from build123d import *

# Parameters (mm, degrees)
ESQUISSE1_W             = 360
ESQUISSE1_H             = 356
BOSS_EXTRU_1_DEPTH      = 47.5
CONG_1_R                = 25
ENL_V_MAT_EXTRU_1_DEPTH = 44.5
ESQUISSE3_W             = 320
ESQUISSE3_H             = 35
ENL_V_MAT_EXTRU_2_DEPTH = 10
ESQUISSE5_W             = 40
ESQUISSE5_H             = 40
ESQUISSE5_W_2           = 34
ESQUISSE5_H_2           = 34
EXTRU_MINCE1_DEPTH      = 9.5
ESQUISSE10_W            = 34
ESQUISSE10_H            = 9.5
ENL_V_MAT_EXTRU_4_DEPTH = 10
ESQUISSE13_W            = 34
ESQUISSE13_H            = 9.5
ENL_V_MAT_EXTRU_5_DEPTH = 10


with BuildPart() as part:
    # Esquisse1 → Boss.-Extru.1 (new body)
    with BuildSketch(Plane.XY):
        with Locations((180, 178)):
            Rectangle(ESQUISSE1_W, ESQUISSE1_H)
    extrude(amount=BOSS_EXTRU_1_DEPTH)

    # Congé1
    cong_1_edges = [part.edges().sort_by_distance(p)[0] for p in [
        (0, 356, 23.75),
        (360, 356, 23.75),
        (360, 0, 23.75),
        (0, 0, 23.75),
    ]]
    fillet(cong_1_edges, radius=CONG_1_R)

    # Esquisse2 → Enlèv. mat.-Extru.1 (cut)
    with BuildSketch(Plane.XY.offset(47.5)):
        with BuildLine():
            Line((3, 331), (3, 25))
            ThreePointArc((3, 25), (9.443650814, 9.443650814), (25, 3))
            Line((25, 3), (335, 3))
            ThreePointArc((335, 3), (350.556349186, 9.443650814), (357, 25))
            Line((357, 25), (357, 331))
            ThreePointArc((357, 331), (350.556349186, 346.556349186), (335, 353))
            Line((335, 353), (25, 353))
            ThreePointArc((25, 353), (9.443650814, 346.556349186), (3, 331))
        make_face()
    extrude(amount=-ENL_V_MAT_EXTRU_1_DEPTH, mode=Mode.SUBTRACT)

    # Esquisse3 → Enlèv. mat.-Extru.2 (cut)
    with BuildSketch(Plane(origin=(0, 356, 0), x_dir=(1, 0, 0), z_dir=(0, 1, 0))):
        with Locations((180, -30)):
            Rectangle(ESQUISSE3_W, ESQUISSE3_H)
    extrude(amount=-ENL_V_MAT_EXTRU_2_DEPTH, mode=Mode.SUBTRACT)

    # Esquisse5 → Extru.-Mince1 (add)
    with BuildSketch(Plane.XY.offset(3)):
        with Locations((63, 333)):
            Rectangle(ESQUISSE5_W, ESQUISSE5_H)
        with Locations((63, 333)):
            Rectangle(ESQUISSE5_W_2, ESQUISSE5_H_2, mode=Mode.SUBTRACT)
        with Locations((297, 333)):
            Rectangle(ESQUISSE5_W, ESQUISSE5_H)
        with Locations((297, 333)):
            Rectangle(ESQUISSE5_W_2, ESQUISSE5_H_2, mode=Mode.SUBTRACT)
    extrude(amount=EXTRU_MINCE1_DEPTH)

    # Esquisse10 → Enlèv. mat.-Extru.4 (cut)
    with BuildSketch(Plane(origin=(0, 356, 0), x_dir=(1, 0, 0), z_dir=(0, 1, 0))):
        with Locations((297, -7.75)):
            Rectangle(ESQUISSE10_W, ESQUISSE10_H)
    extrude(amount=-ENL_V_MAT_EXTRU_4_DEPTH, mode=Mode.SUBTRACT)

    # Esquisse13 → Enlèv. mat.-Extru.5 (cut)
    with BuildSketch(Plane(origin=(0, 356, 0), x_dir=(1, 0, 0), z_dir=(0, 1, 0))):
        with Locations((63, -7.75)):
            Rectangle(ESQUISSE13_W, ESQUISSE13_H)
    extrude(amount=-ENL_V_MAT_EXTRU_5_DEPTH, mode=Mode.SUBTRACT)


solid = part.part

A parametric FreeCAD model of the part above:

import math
import FreeCAD as App
import Part
import Sketcher


def edges_at(feature, points):
    """Names of the edges that pass closest to the given points."""
    edges = feature.Shape.Edges
    near = lambda p: min(range(len(edges)), key=lambda i: edges[i].distToShape(Part.Vertex(*p))[0])
    return sorted({f"Edge{near(p) + 1}" for p in points})


def add_polygon(sketch, points):
    """Adds a closed chain of lines whose ends are joined by coincident constraints."""
    first, n = sketch.GeometryCount, len(points)
    for a, b in zip(points, points[1:] + points[:1]):
        sketch.addGeometry(Part.LineSegment(App.Vector(*a, 0), App.Vector(*b, 0)), False)
    for i in range(n):
        sketch.addConstraint(Sketcher.Constraint("Coincident", first + i, 2, first + (i + 1) % n, 1))

doc = App.newDocument("Part")
params = doc.addObject("Spreadsheet::Sheet", "Params")
for row, (alias, value) in enumerate([
    ("sketch1_width", "360 mm"),
    ("sketch1_height", "356 mm"),
    ("pad1_length", "47.5 mm"),
    ("fillet_radius", "25 mm"),
    ("sketch2_radius", "22 mm"),
    ("sketch2_width", "310 mm"),
    ("sketch2_height", "306 mm"),
    ("pocket1_length", "44.5 mm"),
    ("sketch3_width", "320 mm"),
    ("sketch3_height", "35 mm"),
    ("pocket2_length", "10 mm"),
    ("sketch4_width", "40 mm"),
    ("sketch4_width2", "34 mm"),
    ("pad2_length", "9.5 mm"),
    ("sketch5_width", "34 mm"),
    ("sketch5_height", "9.5 mm"),
    ("pocket3_length", "10 mm"),
    ("sketch6_width", "34 mm"),
    ("sketch6_height", "9.5 mm"),
    ("pocket4_length", "10 mm"),
], start=1):
    params.set(f"A{row}", alias)
    params.set(f"B{row}", "=" + value)
    params.setAlias(f"B{row}", alias)

body = doc.addObject("PartDesign::Body", "Body")

# Sketch on XY plane
sketch1 = doc.addObject("Sketcher::SketchObject", "Sketch")
body.addObject(sketch1)
sketch1.AttachmentSupport = (doc.XY_Plane, [""])
sketch1.MapMode = "FlatFace"
add_polygon(sketch1, [(0, 356), (0, 0), (360, 0), (360, 356)])  # lines 0-3
sketch1.addConstraint([
    Sketcher.Constraint("Vertical", 0),
    Sketcher.Constraint("Horizontal", 1),
    Sketcher.Constraint("Vertical", 2),
    Sketcher.Constraint("Horizontal", 3),
    Sketcher.Constraint("Coincident", 0, 2, -1, 1),
    Sketcher.Constraint("DistanceX", 1, 1, 1, 2, 360.0),
    Sketcher.Constraint("DistanceY", 0, 2, 0, 1, 356.0),
])
sketch1.setExpression("Constraints[9]", "Params.sketch1_width")
sketch1.setExpression("Constraints[10]", "Params.sketch1_height")
pad1 = doc.addObject("PartDesign::Pad", "Pad")
body.addObject(pad1)
pad1.Profile = sketch1
pad1.setExpression("Length", "Params.pad1_length")
doc.recompute()

fillet = doc.addObject("PartDesign::Fillet", "Fillet")
body.addObject(fillet)
fillet.Base = (pad1, edges_at(pad1, [
    (0, 356, 23.75),
    (360, 356, 23.75),
    (360, 0, 23.75),
    (0, 0, 23.75),
]))
fillet.setExpression("Radius", "Params.fillet_radius")

# Sketch on XY plane
sketch2 = doc.addObject("Sketcher::SketchObject", "Sketch001")
body.addObject(sketch2)
sketch2.AttachmentSupport = (doc.XY_Plane, [""])
sketch2.MapMode = "FlatFace"
sketch2.AttachmentOffset = App.Placement(App.Vector(0, 0, 47.5), App.Rotation())
sketch2.addGeometry([
    Part.LineSegment(App.Vector(3, 331, 0), App.Vector(3, 25, 0)),  # 0
    Part.ArcOfCircle(Part.Circle(App.Vector(25, 25, 0), App.Vector(0, 0, 1), 22), math.radians(180), math.radians(270)),  # 1
    Part.LineSegment(App.Vector(25, 3, 0), App.Vector(335, 3, 0)),  # 2
    Part.ArcOfCircle(Part.Circle(App.Vector(335, 25, 0), App.Vector(0, 0, 1), 22), math.radians(-90), math.radians(0)),  # 3
    Part.LineSegment(App.Vector(357, 25, 0), App.Vector(357, 331, 0)),  # 4
    Part.ArcOfCircle(Part.Circle(App.Vector(335, 331, 0), App.Vector(0, 0, 1), 22), math.radians(0), math.radians(90)),  # 5
    Part.LineSegment(App.Vector(335, 353, 0), App.Vector(25, 353, 0)),  # 6
    Part.ArcOfCircle(Part.Circle(App.Vector(25, 331, 0), App.Vector(0, 0, 1), 22), math.radians(90), math.radians(180)),  # 7
], False)
sketch2.addConstraint([
    Sketcher.Constraint("Tangent", 0, 2, 1, 1),
    Sketcher.Constraint("Tangent", 1, 2, 2, 1),
    Sketcher.Constraint("Tangent", 2, 2, 3, 1),
    Sketcher.Constraint("Tangent", 3, 2, 4, 1),
    Sketcher.Constraint("Tangent", 4, 2, 5, 1),
    Sketcher.Constraint("Tangent", 5, 2, 6, 1),
    Sketcher.Constraint("Tangent", 6, 2, 7, 1),
    Sketcher.Constraint("Tangent", 7, 2, 0, 1),
    Sketcher.Constraint("Vertical", 0),
    Sketcher.Constraint("Horizontal", 2),
    Sketcher.Constraint("Vertical", 4),
    Sketcher.Constraint("Horizontal", 6),
    Sketcher.Constraint("Equal", 1, 3),
    Sketcher.Constraint("Equal", 3, 5),
    Sketcher.Constraint("Equal", 5, 7),
    Sketcher.Constraint("Radius", 1, 22.0),
    Sketcher.Constraint("DistanceX", 2, 1, 2, 2, 310.0),
    Sketcher.Constraint("DistanceY", 0, 2, 0, 1, 306.0),
    Sketcher.Constraint("DistanceX", -1, 1, 1, 3, 25.0),
    Sketcher.Constraint("DistanceY", -1, 1, 1, 3, 25.0),
])
sketch2.setExpression("Constraints[15]", "Params.sketch2_radius")
sketch2.setExpression("Constraints[16]", "Params.sketch2_width")
sketch2.setExpression("Constraints[17]", "Params.sketch2_height")
pocket1 = doc.addObject("PartDesign::Pocket", "Pocket")
body.addObject(pocket1)
pocket1.Profile = sketch2
pocket1.setExpression("Length", "Params.pocket1_length")

# Sketch on XZ plane
sketch3 = doc.addObject("Sketcher::SketchObject", "Sketch002")
body.addObject(sketch3)
sketch3.AttachmentSupport = (doc.XZ_Plane, [""])
sketch3.MapMode = "FlatFace"
sketch3.AttachmentOffset = App.Placement(App.Vector(0, 0, -356), App.Rotation())
add_polygon(sketch3, [(20, 12), (20, 48), (340, 48), (340, 12)])  # lines 0-3
sketch3.addConstraint([
    Sketcher.Constraint("Vertical", 0),
    Sketcher.Constraint("Horizontal", 1),
    Sketcher.Constraint("Vertical", 2),
    Sketcher.Constraint("Horizontal", 3),
    Sketcher.Constraint("DistanceX", 1, 1, 1, 2, 320.0),
    Sketcher.Constraint("DistanceY", 0, 1, 0, 2, 35.0),
    Sketcher.Constraint("DistanceX", -1, 1, 0, 2, 20.0),
    Sketcher.Constraint("DistanceY", -1, 1, 0, 2, 47.5),
])
sketch3.setExpression("Constraints[8]", "Params.sketch3_width")
sketch3.setExpression("Constraints[9]", "Params.sketch3_height")
pocket2 = doc.addObject("PartDesign::Pocket", "Pocket001")
body.addObject(pocket2)
pocket2.Profile = sketch3
pocket2.setExpression("Length", "Params.pocket2_length")
pocket2.Reversed = True

# Sketch on XY plane
sketch4 = doc.addObject("Sketcher::SketchObject", "Sketch003")
body.addObject(sketch4)
sketch4.AttachmentSupport = (doc.XY_Plane, [""])
sketch4.MapMode = "FlatFace"
sketch4.AttachmentOffset = App.Placement(App.Vector(0, 0, 3), App.Rotation())
add_polygon(sketch4, [(43, 353), (43, 313), (83, 313), (83, 353)])  # lines 0-3
add_polygon(sketch4, [(80, 316), (46, 316), (46, 350), (80, 350)])  # lines 4-7
add_polygon(sketch4, [(277, 353), (277, 313), (317, 313), (317, 353)])  # lines 8-11
add_polygon(sketch4, [(314, 316), (280, 316), (280, 350), (314, 350)])  # lines 12-15
sketch4.addConstraint([
    Sketcher.Constraint("Vertical", 0),
    Sketcher.Constraint("Horizontal", 1),
    Sketcher.Constraint("Vertical", 2),
    Sketcher.Constraint("Horizontal", 3),
    Sketcher.Constraint("Horizontal", 4),
    Sketcher.Constraint("Vertical", 5),
    Sketcher.Constraint("Horizontal", 6),
    Sketcher.Constraint("Vertical", 7),
    Sketcher.Constraint("Vertical", 8),
    Sketcher.Constraint("Horizontal", 9),
    Sketcher.Constraint("Vertical", 10),
    Sketcher.Constraint("Horizontal", 11),
    Sketcher.Constraint("Horizontal", 12),
    Sketcher.Constraint("Vertical", 13),
    Sketcher.Constraint("Horizontal", 14),
    Sketcher.Constraint("Vertical", 15),
    Sketcher.Constraint("Horizontal", 1, 2, 8, 2),
    Sketcher.Constraint("Horizontal", 3, 2, 10, 2),
    Sketcher.Constraint("Horizontal", 7, 2, 12, 2),
    Sketcher.Constraint("Horizontal", 6, 2, 13, 2),
    Sketcher.Constraint("Equal", 3, 9),
    Sketcher.Constraint("Equal", 6, 12),
    Sketcher.Constraint("Equal", 11, 0),
    Sketcher.Constraint("Equal", 14, 5),
    Sketcher.Constraint("DistanceX", 1, 1, 1, 2, 40.0),
    Sketcher.Constraint("DistanceX", 4, 2, 4, 1, 34.0),
    Sketcher.Constraint("DistanceX", -1, 1, 0, 2, 43.0),
    Sketcher.Constraint("DistanceY", -1, 1, 0, 2, 313.0),
    Sketcher.Constraint("DistanceX", -1, 1, 4, 2, 46.0),
    Sketcher.Constraint("DistanceY", -1, 1, 4, 2, 316.0),
    Sketcher.Constraint("DistanceX", -1, 1, 8, 2, 277.0),
    Sketcher.Constraint("DistanceX", -1, 1, 12, 2, 280.0),
])
sketch4.setExpression("Constraints[40]", "Params.sketch4_width")
sketch4.setExpression("Constraints[41]", "Params.sketch4_width2")
pad2 = doc.addObject("PartDesign::Pad", "Pad001")
body.addObject(pad2)
pad2.Profile = sketch4
pad2.setExpression("Length", "Params.pad2_length")

# Sketch on XZ plane
sketch5 = doc.addObject("Sketcher::SketchObject", "Sketch004")
body.addObject(sketch5)
sketch5.AttachmentSupport = (doc.XZ_Plane, [""])
sketch5.MapMode = "FlatFace"
sketch5.AttachmentOffset = App.Placement(App.Vector(0, 0, -356), App.Rotation())
add_polygon(sketch5, [(280, 3), (280, 12), (314, 12), (314, 3)])  # lines 0-3
sketch5.addConstraint([
    Sketcher.Constraint("Vertical", 0),
    Sketcher.Constraint("Horizontal", 1),
    Sketcher.Constraint("Vertical", 2),
    Sketcher.Constraint("Horizontal", 3),
    Sketcher.Constraint("DistanceX", 1, 1, 1, 2, 34.0),
    Sketcher.Constraint("DistanceY", 0, 1, 0, 2, 9.5),
    Sketcher.Constraint("DistanceX", -1, 1, 0, 2, 280.0),
    Sketcher.Constraint("DistanceY", -1, 1, 2, 2, 3.0),
])
sketch5.setExpression("Constraints[8]", "Params.sketch5_width")
sketch5.setExpression("Constraints[9]", "Params.sketch5_height")
pocket3 = doc.addObject("PartDesign::Pocket", "Pocket002")
body.addObject(pocket3)
pocket3.Profile = sketch5
pocket3.setExpression("Length", "Params.pocket3_length")
pocket3.Reversed = True

# Sketch on XZ plane
sketch6 = doc.addObject("Sketcher::SketchObject", "Sketch005")
body.addObject(sketch6)
sketch6.AttachmentSupport = (doc.XZ_Plane, [""])
sketch6.MapMode = "FlatFace"
sketch6.AttachmentOffset = App.Placement(App.Vector(0, 0, -356), App.Rotation())
add_polygon(sketch6, [(46, 3), (46, 12), (80, 12), (80, 3)])  # lines 0-3
sketch6.addConstraint([
    Sketcher.Constraint("Vertical", 0),
    Sketcher.Constraint("Horizontal", 1),
    Sketcher.Constraint("Vertical", 2),
    Sketcher.Constraint("Horizontal", 3),
    Sketcher.Constraint("DistanceX", 1, 1, 1, 2, 34.0),
    Sketcher.Constraint("DistanceY", 0, 1, 0, 2, 9.5),
    Sketcher.Constraint("DistanceX", -1, 1, 0, 2, 46.0),
    Sketcher.Constraint("DistanceY", -1, 1, 2, 2, 3.0),
])
sketch6.setExpression("Constraints[8]", "Params.sketch6_width")
sketch6.setExpression("Constraints[9]", "Params.sketch6_height")
pocket4 = doc.addObject("PartDesign::Pocket", "Pocket003")
body.addObject(pocket4)
pocket4.Profile = sketch6
pocket4.setExpression("Length", "Params.pocket4_length")
pocket4.Reversed = True

doc.recompute()
